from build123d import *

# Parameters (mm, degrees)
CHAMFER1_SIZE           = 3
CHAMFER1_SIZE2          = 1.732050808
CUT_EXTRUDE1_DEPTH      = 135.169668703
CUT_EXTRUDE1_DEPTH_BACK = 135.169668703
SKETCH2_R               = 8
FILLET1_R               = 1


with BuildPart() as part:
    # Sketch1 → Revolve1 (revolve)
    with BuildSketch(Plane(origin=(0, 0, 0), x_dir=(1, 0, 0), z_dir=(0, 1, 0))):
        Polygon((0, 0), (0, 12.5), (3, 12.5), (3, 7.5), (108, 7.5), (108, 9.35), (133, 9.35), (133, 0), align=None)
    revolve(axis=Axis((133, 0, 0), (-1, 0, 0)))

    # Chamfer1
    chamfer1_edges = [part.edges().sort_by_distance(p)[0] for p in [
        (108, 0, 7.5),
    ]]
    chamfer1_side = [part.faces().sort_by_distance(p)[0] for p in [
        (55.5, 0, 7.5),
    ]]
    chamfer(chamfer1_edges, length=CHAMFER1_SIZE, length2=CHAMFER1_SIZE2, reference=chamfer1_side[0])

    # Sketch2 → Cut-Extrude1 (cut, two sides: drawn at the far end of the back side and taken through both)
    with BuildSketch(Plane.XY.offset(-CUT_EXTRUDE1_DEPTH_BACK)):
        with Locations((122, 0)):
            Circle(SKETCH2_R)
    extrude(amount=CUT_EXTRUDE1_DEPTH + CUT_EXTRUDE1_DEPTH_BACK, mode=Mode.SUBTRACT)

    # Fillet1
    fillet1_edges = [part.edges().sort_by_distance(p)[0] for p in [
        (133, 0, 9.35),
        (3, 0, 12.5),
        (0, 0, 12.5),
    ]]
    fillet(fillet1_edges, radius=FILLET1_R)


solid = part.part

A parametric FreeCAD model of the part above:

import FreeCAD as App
import Part
import Sketcher
from FreeCAD import Vector


def edges_at(feature, points):
    """Names of the edges that pass closest to the given points."""
    edges = feature.Shape.Edges
    near = lambda p: min(range(len(edges)), key=lambda i: edges[i].distToShape(Part.Vertex(*p))[0])
    return sorted({f"Edge{near(p) + 1}" for p in points})

doc = App.newDocument("Part")
body = doc.addObject("PartDesign::Body", "Body")

# Sketch on XZ plane
sketch1 = doc.addObject("Sketcher::SketchObject", "Sketch")
body.addObject(sketch1)
sketch1.AttachmentSupport = (doc.XZ_Plane, [""])
sketch1.MapMode = "FlatFace"
sketch1.addGeometry(Part.LineSegment(Vector(0, -12.5, 0), Vector(0, 0, 0)), False)
sketch1.addGeometry(Part.LineSegment(Vector(0, 0, 0), Vector(133, 0, 0)), False)
sketch1.addGeometry(Part.LineSegment(Vector(133, 0, 0), Vector(133, -9.3, 0)), False)
sketch1.addGeometry(Part.LineSegment(Vector(133, -9.3, 0), Vector(108, -9.3, 0)), False)
sketch1.addGeometry(Part.LineSegment(Vector(108, -9.3, 0), Vector(108, -7.5, 0)), False)
sketch1.addGeometry(Part.LineSegment(Vector(108, -7.5, 0), Vector(3, -7.5, 0)), False)
sketch1.addGeometry(Part.LineSegment(Vector(3, -7.5, 0), Vector(3, -12.5, 0)), False)
sketch1.addGeometry(Part.LineSegment(Vector(3, -12.5, 0), Vector(0, -12.5, 0)), False)
sketch1.addConstraint(Sketcher.Constraint("Coincident", 0, 2, 1, 1))
sketch1.addConstraint(Sketcher.Constraint("Coincident", 1, 2, 2, 1))
sketch1.addConstraint(Sketcher.Constraint("Coincident", 2, 2, 3, 1))
sketch1.addConstraint(Sketcher.Constraint("Coincident", 3, 2, 4, 1))
sketch1.addConstraint(Sketcher.Constraint("Coincident", 4, 2, 5, 1))
sketch1.addConstraint(Sketcher.Constraint("Coincident", 5, 2, 6, 1))
sketch1.addConstraint(Sketcher.Constraint("Coincident", 6, 2, 7, 1))
sketch1.addConstraint(Sketcher.Constraint("Coincident", 7, 2, 0, 1))
sketch1.addConstraint(Sketcher.Constraint("Vertical", 0))
sketch1.addConstraint(Sketcher.Constraint("Horizontal", 1))
sketch1.addConstraint(Sketcher.Constraint("Vertical", 2))
sketch1.addConstraint(Sketcher.Constraint("Horizontal", 3))
sketch1.addConstraint(Sketcher.Constraint("Vertical", 4))
sketch1.addConstraint(Sketcher.Constraint("Horizontal", 5))
sketch1.addConstraint(Sketcher.Constraint("Vertical", 6))
sketch1.addConstraint(Sketcher.Constraint("Horizontal", 7))
sketch1.addConstraint(Sketcher.Constraint("Coincident", 0, 2, -1, 1))
sketch1.addConstraint(Sketcher.Constraint("DistanceX", 1, 1, 1, 2, 133.0))
sketch1.addConstraint(Sketcher.Constraint("DistanceX", 3, 2, 3, 1, 25.0))
sketch1.addConstraint(Sketcher.Constraint("DistanceX", 5, 2, 5, 1, 105.0))
sketch1.addConstraint(Sketcher.Constraint("DistanceY", 6, 2, 6, 1, 5.0))
sketch1.addConstraint(Sketcher.Constraint("DistanceY", 0, 1, 0, 2, 12.5))
sketch1.addConstraint(Sketcher.Constraint("DistanceY", 2, 2, 2, 1, 9.35))
revolution = doc.addObject("PartDesign::Revolution", "Revolution")
body.addObject(revolution)
revolution.Profile = sketch1
revolution.ReferenceAxis = (sketch1, ["H_Axis"])
revolution.Angle = 360
doc.recompute()

chamfer = doc.addObject("PartDesign::Chamfer", "Chamfer")
body.addObject(chamfer)
chamfer.Base = (revolution, edges_at(revolution, [(108, 0, 7.5)]))
chamfer.ChamferType = "Two distances"
chamfer.Size = 3
chamfer.Size2 = 1.732051
chamfer.FlipDirection = True

# Sketch on XY plane
sketch2 = doc.addObject("Sketcher::SketchObject", "Sketch001")
body.addObject(sketch2)
sketch2.AttachmentSupport = (doc.XY_Plane, [""])
sketch2.MapMode = "FlatFace"
sketch2.addGeometry(Part.Circle(Vector(122, 0, 0), Vector(0, 0, 1), 8), False)
sketch2.addConstraint(Sketcher.Constraint("PointOnObject", 0, 3, -1))
sketch2.addConstraint(Sketcher.Constraint("Diameter", 0, 16.0))
sketch2.addConstraint(Sketcher.Constraint("DistanceX", -1, 1, 0, 3, 122.0))
pocket1 = doc.addObject("PartDesign::Pocket", "Pocket")
body.addObject(pocket1)
pocket1.Profile = sketch2
pocket1.Type = "ThroughAll"
pocket1.Midplane = True
doc.recompute()

fillet = doc.addObject("PartDesign::Fillet", "Fillet")
body.addObject(fillet)
fillet.Base = (pocket1, edges_at(pocket1, [(133, 0, 9.35), (3, 0, 12.5), (0, 0, 12.5)]))
fillet.Radius = 1

doc.recompute()
